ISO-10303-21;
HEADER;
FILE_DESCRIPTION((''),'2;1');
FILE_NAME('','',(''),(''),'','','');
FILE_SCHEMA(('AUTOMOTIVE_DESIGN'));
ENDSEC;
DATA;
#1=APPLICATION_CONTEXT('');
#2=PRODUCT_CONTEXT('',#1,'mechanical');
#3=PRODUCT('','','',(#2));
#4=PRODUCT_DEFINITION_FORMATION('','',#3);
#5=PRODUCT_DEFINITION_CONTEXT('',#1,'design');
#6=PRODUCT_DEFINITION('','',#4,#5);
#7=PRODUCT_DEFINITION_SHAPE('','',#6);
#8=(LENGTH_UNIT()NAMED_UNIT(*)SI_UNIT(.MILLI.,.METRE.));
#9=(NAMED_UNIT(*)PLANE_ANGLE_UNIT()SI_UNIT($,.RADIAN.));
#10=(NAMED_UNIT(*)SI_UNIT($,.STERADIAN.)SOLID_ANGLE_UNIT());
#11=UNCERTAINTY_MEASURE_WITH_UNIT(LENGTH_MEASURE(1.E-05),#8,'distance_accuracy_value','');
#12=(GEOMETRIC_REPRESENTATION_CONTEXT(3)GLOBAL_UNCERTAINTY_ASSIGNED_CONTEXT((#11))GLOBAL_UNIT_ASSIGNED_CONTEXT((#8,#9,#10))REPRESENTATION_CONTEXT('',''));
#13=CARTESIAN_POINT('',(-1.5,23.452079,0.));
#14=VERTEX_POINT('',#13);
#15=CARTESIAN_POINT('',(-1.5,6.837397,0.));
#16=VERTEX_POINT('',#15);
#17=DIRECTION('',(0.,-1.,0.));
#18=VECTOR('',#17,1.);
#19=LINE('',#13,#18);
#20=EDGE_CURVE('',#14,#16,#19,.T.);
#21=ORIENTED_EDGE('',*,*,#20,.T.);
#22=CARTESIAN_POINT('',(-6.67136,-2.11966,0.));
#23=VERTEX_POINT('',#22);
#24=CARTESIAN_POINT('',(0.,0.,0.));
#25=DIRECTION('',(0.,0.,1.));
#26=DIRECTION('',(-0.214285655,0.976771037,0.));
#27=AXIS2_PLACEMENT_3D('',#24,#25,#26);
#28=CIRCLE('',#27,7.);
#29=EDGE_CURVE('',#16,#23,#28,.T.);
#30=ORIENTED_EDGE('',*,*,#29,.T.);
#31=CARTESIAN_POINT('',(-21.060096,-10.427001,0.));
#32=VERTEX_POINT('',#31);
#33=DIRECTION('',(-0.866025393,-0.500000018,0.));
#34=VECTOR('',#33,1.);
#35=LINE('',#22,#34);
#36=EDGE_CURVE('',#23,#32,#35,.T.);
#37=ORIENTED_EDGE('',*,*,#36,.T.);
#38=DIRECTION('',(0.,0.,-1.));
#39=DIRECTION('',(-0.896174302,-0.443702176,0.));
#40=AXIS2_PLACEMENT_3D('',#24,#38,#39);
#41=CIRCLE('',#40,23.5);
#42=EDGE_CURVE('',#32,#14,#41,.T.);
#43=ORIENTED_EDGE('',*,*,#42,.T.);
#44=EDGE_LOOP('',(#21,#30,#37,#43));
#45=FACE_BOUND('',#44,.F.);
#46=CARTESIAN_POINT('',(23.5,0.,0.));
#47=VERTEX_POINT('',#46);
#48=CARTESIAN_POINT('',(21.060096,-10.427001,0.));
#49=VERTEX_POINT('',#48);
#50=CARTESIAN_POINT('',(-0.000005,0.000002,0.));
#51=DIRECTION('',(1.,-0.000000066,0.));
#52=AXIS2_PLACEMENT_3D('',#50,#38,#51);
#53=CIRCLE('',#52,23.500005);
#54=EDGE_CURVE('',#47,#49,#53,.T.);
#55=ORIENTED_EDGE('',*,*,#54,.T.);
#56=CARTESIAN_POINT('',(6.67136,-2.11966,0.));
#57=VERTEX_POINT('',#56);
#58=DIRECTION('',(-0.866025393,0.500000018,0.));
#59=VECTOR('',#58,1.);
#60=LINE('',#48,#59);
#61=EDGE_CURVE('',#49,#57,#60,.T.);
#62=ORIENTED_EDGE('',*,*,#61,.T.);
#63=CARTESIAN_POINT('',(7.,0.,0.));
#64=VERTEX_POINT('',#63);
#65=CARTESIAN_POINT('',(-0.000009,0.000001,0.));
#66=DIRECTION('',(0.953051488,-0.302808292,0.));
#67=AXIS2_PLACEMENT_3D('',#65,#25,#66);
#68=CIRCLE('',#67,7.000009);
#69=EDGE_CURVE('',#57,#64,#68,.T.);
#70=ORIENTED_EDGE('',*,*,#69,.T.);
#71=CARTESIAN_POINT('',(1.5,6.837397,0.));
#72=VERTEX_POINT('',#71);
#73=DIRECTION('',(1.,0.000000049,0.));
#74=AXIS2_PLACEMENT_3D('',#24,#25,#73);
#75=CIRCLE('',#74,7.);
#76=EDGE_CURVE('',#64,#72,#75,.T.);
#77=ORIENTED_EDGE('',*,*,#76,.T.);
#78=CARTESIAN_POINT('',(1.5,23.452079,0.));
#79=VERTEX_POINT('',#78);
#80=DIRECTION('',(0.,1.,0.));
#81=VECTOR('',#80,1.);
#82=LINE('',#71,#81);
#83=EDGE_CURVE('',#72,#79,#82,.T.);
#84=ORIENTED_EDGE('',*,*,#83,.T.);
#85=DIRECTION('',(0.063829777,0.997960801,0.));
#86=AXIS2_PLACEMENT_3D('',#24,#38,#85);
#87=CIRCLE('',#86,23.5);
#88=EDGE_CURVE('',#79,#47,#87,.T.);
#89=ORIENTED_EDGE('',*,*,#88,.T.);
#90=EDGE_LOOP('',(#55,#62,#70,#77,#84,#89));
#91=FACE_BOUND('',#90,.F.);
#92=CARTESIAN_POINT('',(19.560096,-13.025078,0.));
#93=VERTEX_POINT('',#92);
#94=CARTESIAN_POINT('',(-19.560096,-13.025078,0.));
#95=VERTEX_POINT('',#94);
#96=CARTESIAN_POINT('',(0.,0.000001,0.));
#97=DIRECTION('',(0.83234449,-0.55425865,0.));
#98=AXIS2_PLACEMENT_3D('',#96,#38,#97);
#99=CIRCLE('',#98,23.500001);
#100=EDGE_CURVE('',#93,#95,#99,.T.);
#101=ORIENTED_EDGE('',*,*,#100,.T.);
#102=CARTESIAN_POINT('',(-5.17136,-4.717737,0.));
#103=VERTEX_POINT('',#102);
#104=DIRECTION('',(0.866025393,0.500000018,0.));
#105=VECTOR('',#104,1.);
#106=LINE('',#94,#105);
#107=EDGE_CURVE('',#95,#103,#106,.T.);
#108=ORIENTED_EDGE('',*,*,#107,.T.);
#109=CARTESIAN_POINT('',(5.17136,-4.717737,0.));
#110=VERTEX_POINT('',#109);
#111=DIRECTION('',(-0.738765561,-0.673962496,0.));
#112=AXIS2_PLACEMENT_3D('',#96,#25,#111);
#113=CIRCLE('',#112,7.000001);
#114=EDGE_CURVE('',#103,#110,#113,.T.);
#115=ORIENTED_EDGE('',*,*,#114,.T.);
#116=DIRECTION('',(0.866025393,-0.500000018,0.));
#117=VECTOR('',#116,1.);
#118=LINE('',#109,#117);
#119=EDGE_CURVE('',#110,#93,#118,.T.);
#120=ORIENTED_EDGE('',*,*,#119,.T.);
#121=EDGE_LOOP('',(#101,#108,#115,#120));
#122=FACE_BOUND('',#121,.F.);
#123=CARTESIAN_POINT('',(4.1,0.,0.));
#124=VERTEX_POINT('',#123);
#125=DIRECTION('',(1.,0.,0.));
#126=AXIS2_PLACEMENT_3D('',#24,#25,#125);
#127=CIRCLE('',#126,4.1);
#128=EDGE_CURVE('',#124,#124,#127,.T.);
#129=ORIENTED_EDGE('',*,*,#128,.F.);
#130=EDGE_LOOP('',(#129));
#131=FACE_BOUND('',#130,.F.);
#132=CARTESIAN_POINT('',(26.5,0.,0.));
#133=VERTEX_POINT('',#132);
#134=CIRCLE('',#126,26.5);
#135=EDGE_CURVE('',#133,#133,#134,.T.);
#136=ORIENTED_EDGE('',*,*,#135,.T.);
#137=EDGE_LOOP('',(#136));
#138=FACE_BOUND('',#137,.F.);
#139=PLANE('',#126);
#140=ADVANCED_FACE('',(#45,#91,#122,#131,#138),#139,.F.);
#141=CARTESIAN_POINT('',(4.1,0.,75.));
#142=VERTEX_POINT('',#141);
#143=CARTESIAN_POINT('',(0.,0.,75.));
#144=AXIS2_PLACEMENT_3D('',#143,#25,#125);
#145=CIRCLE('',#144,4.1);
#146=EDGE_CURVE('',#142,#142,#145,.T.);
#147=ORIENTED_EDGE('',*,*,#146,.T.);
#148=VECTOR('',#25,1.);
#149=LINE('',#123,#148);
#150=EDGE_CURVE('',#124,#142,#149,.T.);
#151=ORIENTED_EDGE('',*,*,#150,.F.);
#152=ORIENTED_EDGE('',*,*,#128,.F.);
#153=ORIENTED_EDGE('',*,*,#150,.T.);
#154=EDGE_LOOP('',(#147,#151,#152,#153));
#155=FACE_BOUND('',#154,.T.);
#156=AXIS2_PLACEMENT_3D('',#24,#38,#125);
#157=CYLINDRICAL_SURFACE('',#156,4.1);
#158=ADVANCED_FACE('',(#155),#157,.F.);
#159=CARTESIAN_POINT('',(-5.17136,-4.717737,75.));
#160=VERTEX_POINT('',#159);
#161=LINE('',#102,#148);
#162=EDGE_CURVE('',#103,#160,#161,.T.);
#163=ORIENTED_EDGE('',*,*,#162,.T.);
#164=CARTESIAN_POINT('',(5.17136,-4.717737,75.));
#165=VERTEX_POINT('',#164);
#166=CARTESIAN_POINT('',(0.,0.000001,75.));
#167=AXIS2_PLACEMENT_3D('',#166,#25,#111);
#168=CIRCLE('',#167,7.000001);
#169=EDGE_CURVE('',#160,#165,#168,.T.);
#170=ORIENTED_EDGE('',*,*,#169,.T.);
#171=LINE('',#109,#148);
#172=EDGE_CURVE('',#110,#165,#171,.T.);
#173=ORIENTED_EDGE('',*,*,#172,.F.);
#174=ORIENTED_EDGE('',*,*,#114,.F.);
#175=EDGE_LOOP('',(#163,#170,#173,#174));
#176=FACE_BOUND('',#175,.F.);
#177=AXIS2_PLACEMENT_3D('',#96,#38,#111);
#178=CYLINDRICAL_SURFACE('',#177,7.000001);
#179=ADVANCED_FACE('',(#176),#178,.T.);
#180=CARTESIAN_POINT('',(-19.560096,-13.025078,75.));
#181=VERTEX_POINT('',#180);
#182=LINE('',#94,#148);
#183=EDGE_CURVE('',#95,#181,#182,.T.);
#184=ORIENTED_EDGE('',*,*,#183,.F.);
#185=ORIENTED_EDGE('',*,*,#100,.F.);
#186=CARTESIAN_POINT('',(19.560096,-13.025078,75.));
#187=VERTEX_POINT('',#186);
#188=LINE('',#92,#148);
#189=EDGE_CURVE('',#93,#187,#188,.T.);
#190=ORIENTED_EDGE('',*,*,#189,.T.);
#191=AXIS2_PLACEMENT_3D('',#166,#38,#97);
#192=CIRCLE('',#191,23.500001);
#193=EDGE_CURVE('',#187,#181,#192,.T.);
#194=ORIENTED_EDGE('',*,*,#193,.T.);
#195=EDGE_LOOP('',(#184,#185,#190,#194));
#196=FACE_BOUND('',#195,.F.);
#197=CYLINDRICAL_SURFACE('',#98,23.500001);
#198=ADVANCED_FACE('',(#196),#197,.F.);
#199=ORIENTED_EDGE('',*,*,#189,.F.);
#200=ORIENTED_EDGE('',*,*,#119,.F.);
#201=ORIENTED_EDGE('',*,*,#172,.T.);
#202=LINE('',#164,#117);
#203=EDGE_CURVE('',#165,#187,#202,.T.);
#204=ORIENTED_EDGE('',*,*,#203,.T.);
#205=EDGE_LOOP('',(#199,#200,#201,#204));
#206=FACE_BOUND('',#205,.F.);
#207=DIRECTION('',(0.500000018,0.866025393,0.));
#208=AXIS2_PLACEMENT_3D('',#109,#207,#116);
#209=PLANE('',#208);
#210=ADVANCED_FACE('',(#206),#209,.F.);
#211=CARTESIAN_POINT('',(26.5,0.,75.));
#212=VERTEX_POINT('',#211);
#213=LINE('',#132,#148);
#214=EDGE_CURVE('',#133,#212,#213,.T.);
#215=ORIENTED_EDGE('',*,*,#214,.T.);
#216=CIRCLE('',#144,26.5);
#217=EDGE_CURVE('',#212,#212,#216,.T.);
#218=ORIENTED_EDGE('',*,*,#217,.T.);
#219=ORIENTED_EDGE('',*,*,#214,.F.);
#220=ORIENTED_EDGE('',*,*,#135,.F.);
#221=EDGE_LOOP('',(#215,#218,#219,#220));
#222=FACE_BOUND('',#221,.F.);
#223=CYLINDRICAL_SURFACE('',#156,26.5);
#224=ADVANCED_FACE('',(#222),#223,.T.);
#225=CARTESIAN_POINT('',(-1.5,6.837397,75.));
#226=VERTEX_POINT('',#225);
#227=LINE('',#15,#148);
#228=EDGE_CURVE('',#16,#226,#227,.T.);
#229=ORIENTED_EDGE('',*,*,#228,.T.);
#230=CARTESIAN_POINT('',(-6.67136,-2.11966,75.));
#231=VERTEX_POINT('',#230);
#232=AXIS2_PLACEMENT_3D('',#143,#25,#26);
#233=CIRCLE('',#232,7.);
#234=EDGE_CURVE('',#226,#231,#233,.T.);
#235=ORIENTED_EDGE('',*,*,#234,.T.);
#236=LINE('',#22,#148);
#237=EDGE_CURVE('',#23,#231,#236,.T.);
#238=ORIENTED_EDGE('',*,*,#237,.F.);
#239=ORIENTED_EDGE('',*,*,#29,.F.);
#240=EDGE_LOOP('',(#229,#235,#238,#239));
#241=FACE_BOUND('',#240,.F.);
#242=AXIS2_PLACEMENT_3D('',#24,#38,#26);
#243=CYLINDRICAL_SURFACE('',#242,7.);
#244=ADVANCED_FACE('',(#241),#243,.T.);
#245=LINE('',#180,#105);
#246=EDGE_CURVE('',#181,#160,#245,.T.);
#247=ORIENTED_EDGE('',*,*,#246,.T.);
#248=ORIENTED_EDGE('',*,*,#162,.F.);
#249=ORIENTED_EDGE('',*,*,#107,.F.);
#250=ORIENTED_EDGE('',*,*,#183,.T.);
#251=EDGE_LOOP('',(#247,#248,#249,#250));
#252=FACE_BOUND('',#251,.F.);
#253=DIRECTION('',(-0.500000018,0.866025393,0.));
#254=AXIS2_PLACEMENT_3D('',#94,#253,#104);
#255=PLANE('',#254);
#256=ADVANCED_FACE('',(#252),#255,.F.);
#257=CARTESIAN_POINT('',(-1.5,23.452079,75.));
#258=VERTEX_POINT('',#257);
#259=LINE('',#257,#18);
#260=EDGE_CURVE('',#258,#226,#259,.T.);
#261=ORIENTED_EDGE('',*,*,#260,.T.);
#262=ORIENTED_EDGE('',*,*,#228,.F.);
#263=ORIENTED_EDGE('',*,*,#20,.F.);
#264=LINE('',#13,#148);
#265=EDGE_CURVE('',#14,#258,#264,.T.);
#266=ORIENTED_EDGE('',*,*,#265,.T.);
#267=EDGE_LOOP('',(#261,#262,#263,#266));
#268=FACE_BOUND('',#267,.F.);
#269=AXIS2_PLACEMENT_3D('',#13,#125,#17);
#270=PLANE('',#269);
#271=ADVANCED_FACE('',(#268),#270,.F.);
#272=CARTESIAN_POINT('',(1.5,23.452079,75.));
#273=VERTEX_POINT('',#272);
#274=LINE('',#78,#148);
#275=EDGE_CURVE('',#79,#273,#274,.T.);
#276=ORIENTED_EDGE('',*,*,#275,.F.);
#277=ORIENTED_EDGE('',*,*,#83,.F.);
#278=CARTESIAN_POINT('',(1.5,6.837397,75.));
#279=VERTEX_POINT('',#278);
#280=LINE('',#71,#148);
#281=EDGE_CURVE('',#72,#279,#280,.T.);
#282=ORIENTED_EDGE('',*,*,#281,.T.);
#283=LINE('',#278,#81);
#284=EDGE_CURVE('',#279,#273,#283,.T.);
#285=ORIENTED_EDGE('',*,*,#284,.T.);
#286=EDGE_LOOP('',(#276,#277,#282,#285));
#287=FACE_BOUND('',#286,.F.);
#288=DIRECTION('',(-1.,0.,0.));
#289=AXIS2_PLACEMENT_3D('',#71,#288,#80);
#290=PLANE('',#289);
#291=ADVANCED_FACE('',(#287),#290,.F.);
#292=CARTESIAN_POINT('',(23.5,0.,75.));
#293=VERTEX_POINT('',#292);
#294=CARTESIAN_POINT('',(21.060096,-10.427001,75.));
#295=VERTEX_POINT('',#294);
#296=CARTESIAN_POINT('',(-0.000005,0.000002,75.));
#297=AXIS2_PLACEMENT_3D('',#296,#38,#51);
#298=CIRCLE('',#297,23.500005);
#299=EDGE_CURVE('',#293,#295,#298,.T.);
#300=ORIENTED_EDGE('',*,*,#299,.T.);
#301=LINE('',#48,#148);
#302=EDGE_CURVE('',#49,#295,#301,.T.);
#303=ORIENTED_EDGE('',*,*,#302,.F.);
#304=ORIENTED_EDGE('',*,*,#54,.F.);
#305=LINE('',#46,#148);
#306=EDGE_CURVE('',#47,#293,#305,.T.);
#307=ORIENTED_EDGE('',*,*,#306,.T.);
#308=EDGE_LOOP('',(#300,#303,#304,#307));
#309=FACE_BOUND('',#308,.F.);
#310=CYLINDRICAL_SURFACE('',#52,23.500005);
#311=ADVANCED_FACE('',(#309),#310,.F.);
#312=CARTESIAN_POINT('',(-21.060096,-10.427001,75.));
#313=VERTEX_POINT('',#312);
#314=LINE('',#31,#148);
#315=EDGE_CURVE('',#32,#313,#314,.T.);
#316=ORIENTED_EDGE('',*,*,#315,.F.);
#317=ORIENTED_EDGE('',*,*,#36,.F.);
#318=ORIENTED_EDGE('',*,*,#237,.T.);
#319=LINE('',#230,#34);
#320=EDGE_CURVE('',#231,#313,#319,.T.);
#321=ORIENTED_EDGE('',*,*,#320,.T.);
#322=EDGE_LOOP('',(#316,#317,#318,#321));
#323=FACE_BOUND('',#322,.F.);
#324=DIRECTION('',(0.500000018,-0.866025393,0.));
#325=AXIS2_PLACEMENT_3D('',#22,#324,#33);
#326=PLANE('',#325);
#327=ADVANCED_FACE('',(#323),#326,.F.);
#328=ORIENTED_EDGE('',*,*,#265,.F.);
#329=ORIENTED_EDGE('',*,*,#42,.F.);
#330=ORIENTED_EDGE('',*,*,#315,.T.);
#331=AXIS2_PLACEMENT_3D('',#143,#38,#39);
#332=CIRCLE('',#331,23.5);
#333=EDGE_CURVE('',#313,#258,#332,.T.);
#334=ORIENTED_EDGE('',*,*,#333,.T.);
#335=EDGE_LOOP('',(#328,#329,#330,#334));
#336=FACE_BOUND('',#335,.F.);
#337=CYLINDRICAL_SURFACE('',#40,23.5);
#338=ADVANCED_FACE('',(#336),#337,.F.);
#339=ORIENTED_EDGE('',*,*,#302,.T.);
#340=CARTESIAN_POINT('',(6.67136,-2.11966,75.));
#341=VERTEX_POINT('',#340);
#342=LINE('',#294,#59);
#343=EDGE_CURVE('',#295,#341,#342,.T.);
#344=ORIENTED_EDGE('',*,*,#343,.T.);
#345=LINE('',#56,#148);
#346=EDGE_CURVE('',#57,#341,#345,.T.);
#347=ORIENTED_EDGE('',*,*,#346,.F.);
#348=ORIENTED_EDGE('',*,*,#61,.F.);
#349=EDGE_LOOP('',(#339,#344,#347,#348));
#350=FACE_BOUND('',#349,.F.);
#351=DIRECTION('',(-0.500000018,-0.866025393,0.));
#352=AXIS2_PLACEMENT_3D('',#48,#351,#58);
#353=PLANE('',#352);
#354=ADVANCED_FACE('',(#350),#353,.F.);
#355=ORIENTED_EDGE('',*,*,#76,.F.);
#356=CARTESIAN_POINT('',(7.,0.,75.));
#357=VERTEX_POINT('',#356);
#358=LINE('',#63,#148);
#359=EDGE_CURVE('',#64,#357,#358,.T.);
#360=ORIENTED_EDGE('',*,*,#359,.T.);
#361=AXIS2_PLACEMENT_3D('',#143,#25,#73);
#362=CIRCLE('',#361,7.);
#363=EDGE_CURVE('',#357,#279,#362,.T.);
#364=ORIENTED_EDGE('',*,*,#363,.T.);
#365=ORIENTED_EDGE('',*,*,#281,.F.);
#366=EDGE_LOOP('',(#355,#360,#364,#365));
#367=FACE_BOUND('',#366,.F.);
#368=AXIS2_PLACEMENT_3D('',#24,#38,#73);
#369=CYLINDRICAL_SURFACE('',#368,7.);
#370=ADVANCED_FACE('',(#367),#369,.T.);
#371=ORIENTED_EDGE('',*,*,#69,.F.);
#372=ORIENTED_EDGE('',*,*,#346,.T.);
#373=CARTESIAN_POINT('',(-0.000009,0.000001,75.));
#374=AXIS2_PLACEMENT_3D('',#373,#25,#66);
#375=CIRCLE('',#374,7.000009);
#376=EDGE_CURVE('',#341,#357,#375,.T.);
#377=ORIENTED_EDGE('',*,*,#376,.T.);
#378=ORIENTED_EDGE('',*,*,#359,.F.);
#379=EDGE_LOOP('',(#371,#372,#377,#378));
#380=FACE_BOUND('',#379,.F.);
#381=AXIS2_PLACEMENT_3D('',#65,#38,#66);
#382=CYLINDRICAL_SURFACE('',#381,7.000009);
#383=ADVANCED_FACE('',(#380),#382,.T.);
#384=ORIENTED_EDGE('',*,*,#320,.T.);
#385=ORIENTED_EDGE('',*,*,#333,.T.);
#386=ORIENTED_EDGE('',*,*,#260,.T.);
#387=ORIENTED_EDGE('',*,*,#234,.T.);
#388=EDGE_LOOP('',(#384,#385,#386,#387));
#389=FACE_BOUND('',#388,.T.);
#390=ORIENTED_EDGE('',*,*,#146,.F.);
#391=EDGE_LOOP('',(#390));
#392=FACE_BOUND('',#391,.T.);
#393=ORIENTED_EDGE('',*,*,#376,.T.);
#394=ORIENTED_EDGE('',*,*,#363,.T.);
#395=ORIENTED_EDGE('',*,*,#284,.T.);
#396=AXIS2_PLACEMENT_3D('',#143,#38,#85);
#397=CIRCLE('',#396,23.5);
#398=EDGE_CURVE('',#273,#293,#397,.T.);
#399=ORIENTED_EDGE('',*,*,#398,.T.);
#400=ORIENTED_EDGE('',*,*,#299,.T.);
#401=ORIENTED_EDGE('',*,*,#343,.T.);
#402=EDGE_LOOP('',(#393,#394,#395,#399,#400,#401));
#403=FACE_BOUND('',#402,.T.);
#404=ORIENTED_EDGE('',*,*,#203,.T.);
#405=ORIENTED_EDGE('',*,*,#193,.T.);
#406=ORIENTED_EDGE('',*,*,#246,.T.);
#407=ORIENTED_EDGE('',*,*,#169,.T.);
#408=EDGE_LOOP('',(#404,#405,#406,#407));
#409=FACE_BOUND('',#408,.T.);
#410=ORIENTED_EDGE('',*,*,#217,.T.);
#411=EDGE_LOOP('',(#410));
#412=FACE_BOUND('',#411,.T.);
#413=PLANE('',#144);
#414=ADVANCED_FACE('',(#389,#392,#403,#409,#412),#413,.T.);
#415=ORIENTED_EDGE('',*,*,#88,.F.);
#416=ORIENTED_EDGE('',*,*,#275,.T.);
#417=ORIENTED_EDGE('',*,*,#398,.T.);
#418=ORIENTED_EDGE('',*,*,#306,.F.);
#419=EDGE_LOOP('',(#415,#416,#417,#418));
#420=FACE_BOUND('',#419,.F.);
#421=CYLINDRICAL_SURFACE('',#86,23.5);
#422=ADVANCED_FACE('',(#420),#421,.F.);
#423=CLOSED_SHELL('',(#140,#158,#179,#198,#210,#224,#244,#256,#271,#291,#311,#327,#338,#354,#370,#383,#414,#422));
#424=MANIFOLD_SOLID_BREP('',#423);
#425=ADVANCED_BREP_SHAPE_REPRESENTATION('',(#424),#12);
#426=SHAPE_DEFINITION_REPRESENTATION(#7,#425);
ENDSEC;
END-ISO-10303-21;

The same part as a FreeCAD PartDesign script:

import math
import FreeCAD as App
import Part
import Sketcher
Q = App.Units.Quantity

doc = App.newDocument("Part")
body = doc.addObject("PartDesign::Body", "Body")

# Sketch on XY plane
sketch1 = body.newObject("Sketcher::SketchObject", "Sketch")
sketch1.AttachmentSupport = (doc.getObject("XY_Plane"), [""])
sketch1.MapMode = "FlatFace"
sketch1.addGeometry(Part.Circle(App.Vector(0, 0, 0), App.Vector(0, 0, 1), 26.5), False)
sketch1.addGeometry(Part.ArcOfCircle(Part.Circle(App.Vector(0, 0, 0), App.Vector(0, 0, 1), 23.5), math.radians(94), math.radians(206)), False)
sketch1.addGeometry(Part.LineSegment(App.Vector(-1.5, 23.5, 0), App.Vector(-1.5, 6.8, 0)), False)
sketch1.addGeometry(Part.ArcOfCircle(Part.Circle(App.Vector(0, 0, 0), App.Vector(0, 0, 1), 7), math.radians(102), math.radians(198)), False)
sketch1.addGeometry(Part.LineSegment(App.Vector(-6.7, -2.1, 0), App.Vector(-21.1, -10.4, 0)), False)
sketch1.addGeometry(Part.ArcOfCircle(Part.Circle(App.Vector(0, 0, 0), App.Vector(0, 0, 1), 23.5), math.radians(-146), math.radians(-34)), False)
sketch1.addGeometry(Part.LineSegment(App.Vector(-19.6, -13, 0), App.Vector(-5.2, -4.7, 0)), False)
sketch1.addGeometry(Part.ArcOfCircle(Part.Circle(App.Vector(0, 0, 0), App.Vector(0, 0, 1), 7), math.radians(-138), math.radians(-42)), False)
sketch1.addGeometry(Part.LineSegment(App.Vector(5.2, -4.7, 0), App.Vector(19.6, -13, 0)), False)
sketch1.addGeometry(Part.Circle(App.Vector(0, 0, 0), App.Vector(0, 0, 1), 4.1), False)
sketch1.addGeometry(Part.LineSegment(App.Vector(1.5, 6.8, 0), App.Vector(1.5, 23.5, 0)), False)
sketch1.addGeometry(Part.ArcOfCircle(Part.Circle(App.Vector(0, 0, 0), App.Vector(0, 0, 1), 23.5), math.radians(0), math.radians(86)), False)
sketch1.addGeometry(Part.ArcOfCircle(Part.Circle(App.Vector(0, 0, 0), App.Vector(0, 0, 1), 23.5), math.radians(-26), math.radians(0)), False)
sketch1.addGeometry(Part.LineSegment(App.Vector(21.1, -10.4, 0), App.Vector(6.7, -2.1, 0)), False)
sketch1.addGeometry(Part.ArcOfCircle(Part.Circle(App.Vector(0, 0, 0), App.Vector(0, 0, 1), 7), math.radians(-17.63), math.radians(0)), False)
sketch1.addGeometry(Part.ArcOfCircle(Part.Circle(App.Vector(0, 0, 0), App.Vector(0, 0, 1), 7), math.radians(0), math.radians(78)), False)
sketch1.addConstraint(Sketcher.Constraint("Coincident", 1, 1, 2, 1))
sketch1.addConstraint(Sketcher.Constraint("Coincident", 2, 2, 3, 1))
sketch1.addConstraint(Sketcher.Constraint("Coincident", 3, 2, 4, 1))
sketch1.addConstraint(Sketcher.Constraint("Coincident", 4, 2, 1, 2))
sketch1.addConstraint(Sketcher.Constraint("Coincident", 5, 1, 6, 1))
sketch1.addConstraint(Sketcher.Constraint("Coincident", 6, 2, 7, 1))
sketch1.addConstraint(Sketcher.Constraint("Coincident", 7, 2, 8, 1))
sketch1.addConstraint(Sketcher.Constraint("Coincident", 8, 2, 5, 2))
sketch1.addConstraint(Sketcher.Constraint("Coincident", 10, 2, 11, 2))
sketch1.addConstraint(Sketcher.Constraint("Tangent", 11, 1, 12, 2))
sketch1.addConstraint(Sketcher.Constraint("Coincident", 12, 1, 13, 1))
sketch1.addConstraint(Sketcher.Constraint("Coincident", 13, 2, 14, 1))
sketch1.addConstraint(Sketcher.Constraint("Tangent", 14, 2, 15, 1))
sketch1.addConstraint(Sketcher.Constraint("Coincident", 15, 2, 10, 1))
sketch1.addConstraint(Sketcher.Constraint("Vertical", 2))
sketch1.addConstraint(Sketcher.Constraint("Vertical", 10))
sketch1.addConstraint(Sketcher.Constraint("Coincident", 0, 3, -1, 1))
sketch1.addConstraint(Sketcher.Constraint("Coincident", 1, 3, -1, 1))
sketch1.addConstraint(Sketcher.Constraint("Coincident", 3, 3, -1, 1))
sketch1.addConstraint(Sketcher.Constraint("Coincident", 5, 3, -1, 1))
sketch1.addConstraint(Sketcher.Constraint("Coincident", 7, 3, -1, 1))
sketch1.addConstraint(Sketcher.Constraint("Coincident", 9, 3, -1, 1))
sketch1.addConstraint(Sketcher.Constraint("Coincident", 11, 3, -1, 1))
sketch1.addConstraint(Sketcher.Constraint("Coincident", 14, 3, -1, 1))
sketch1.addConstraint(Sketcher.Constraint("Equal", 1, 5))
sketch1.addConstraint(Sketcher.Constraint("Equal", 3, 7))
sketch1.addConstraint(Sketcher.Constraint("Equal", 5, 11))
sketch1.addConstraint(Sketcher.Constraint("Equal", 7, 15))
sketch1.addConstraint(Sketcher.Constraint("Symmetric", 4, 2, 12, 1, -2))
sketch1.addConstraint(Sketcher.Constraint("Symmetric", 3, 2, 13, 2, -2))
sketch1.addConstraint(Sketcher.Constraint("PointOnObject", 11, 1, -1))
sketch1.addConstraint(Sketcher.Constraint("PointOnObject", 14, 2, -1))
sketch1.addConstraint(Sketcher.Constraint("Parallel", 4, 6))
sketch1.addConstraint(Sketcher.Constraint("Parallel", 8, 13))
sketch1.addConstraint(Sketcher.Constraint("Horizontal", 6, 2, 7, 2))
sketch1.addConstraint(Sketcher.Constraint("Horizontal", 1, 1, 10, 2))
sketch1.addConstraint(Sketcher.Constraint("Equal", 4, 6))
sketch1.addConstraint(Sketcher.Constraint("Diameter", 0, Q("53 mm")))
sketch1.addConstraint(Sketcher.Constraint("Radius", 3, Q("7 mm")))
sketch1.addConstraint(Sketcher.Constraint("Diameter", 9, Q("8.2 mm")))
sketch1.addConstraint(Sketcher.Constraint("Radius", 1, Q("23.5 mm")))
sketch1.addConstraint(Sketcher.Constraint("Angle", 4, Q("-149.999999 deg")))
sketch1.addConstraint(Sketcher.Constraint("DistanceX", 1, 1, 10, 2, Q("3 mm")))
sketch1.addConstraint(Sketcher.Constraint("DistanceX", 4, 2, 5, 1, Q("1.5 mm")))
pad1 = body.newObject("PartDesign::Pad", "Pad")
pad1.Profile = sketch1
pad1.Length = 75

doc.recompute()
